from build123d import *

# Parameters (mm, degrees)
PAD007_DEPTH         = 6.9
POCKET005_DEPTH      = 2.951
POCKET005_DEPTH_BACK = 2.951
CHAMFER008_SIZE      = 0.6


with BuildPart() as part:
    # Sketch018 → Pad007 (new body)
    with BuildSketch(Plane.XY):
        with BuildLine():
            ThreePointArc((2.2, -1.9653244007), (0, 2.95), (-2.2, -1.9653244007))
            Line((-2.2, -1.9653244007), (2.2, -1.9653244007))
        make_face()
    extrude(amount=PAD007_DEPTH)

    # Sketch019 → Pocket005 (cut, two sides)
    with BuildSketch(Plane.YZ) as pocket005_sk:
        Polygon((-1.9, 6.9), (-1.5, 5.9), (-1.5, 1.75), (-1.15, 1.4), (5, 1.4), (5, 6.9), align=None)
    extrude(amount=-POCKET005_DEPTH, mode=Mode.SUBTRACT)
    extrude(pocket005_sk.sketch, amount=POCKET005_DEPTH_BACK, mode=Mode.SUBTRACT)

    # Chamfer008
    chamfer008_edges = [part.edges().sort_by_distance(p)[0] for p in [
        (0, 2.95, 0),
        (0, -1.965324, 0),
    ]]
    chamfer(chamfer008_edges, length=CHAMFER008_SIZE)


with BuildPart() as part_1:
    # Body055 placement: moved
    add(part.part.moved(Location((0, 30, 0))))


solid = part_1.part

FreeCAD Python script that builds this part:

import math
import FreeCAD as App
import Part
import Sketcher

V = App.Vector
Q = App.Units.Quantity


def edges_at(feature, points):
    """Names of the edges that pass closest to the given points."""
    edges = feature.Shape.Edges
    near = lambda p: min(range(len(edges)), key=lambda i: edges[i].distToShape(Part.Vertex(*p))[0])
    return sorted({f"Edge{near(p) + 1}" for p in points})


def add_polygon(sketch, points):
    """Adds a closed chain of lines whose ends are joined by coincident constraints."""
    first, n = sketch.GeometryCount, len(points)
    for a, b in zip(points, points[1:] + points[:1]):
        sketch.addGeometry(Part.LineSegment(App.Vector(*a, 0), App.Vector(*b, 0)), False)
    for i in range(n):
        sketch.addConstraint(Sketcher.Constraint("Coincident", first + i, 2, first + (i + 1) % n, 1))

doc = App.newDocument("Part")
params = doc.addObject("Spreadsheet::Sheet", "Params")
for row, (alias, value) in enumerate([
    ("sketch1_radius", "2.95 mm"),
    ("sketch1_width", "4.4 mm"),
    ("pad1_length", "6.9 mm"),
    ("sketch2_width", "6.9 mm"),
    ("sketch2_height", "5.5 mm"),
    ("sketch2_width2", "6.15 mm"),
    ("sketch2_height2", "4.15 mm"),
    ("chamfer_size", "0.6 mm"),
], start=1):
    params.set(f"A{row}", alias)
    params.set(f"B{row}", "=" + value)
    params.setAlias(f"B{row}", alias)

body = doc.addObject("PartDesign::Body", "Body")

# Sketch on XY plane
sketch1 = body.newObject("Sketcher::SketchObject", "Sketch")
sketch1.AttachmentSupport = (doc.getObject("XY_Plane"), [""])
sketch1.MapMode = "FlatFace"
sketch1.addGeometry([
    Part.ArcOfCircle(Part.Circle(V(0, 0, 0), V(0, 0, 1), 3), math.radians(-42), math.radians(222)),
    Part.LineSegment(V(-2.2, -2, 0), V(2.2, -2, 0)),
], False)
sketch1.addConstraint([
    Sketcher.Constraint("Coincident", 0, 1, 1, 2),
    Sketcher.Constraint("Coincident", 1, 1, 0, 2),
    Sketcher.Constraint("Horizontal", 1),
    Sketcher.Constraint("Coincident", 0, 3, -1, 1),
    Sketcher.Constraint("Radius", 0, Q("2.95 mm")),
    Sketcher.Constraint("DistanceX", 1, 1, 1, 2, Q("4.4 mm")),
])
sketch1.setExpression("Constraints[4]", "Params.sketch1_radius")
sketch1.setExpression("Constraints[5]", "Params.sketch1_width")
pad1 = body.newObject("PartDesign::Pad", "Pad")
pad1.Profile = sketch1
pad1.setExpression("Length", "Params.pad1_length")

# Sketch on YZ plane
sketch2 = body.newObject("Sketcher::SketchObject", "Sketch001")
sketch2.AttachmentSupport = (doc.getObject("YZ_Plane"), [""])
sketch2.MapMode = "FlatFace"
add_polygon(sketch2, [(-1.9, 6.9), (-1.5, 5.9), (-1.5, 1.75), (-1.15, 1.4), (5, 1.4), (5, 6.9)])  # lines 0-5
sketch2.addConstraint([
    Sketcher.Constraint("Vertical", 1),
    Sketcher.Constraint("Horizontal", 3),
    Sketcher.Constraint("Vertical", 4),
    Sketcher.Constraint("Horizontal", 5),
    Sketcher.Constraint("Angle", 2, Q("-45 deg")),
    Sketcher.Constraint("DistanceX", 5, 2, 5, 1, Q("6.9 mm")),
    Sketcher.Constraint("DistanceY", 4, 1, 4, 2, Q("5.5 mm")),
    Sketcher.Constraint("DistanceX", -1, 1, 3, 2, Q("5 mm")),
    Sketcher.Constraint("DistanceY", 0, 2, 4, 2, Q("1 mm")),
    Sketcher.Constraint("DistanceX", 3, 1, 3, 2, Q("6.15 mm")),
    Sketcher.Constraint("DistanceY", 1, 2, 1, 1, Q("4.15 mm")),
    Sketcher.Constraint("DistanceY", -1, 1, 0, 2, Q("5.9 mm")),
])
sketch2.setExpression("Constraints[11]", "Params.sketch2_width")
sketch2.setExpression("Constraints[12]", "Params.sketch2_height")
sketch2.setExpression("Constraints[15]", "Params.sketch2_width2")
sketch2.setExpression("Constraints[16]", "Params.sketch2_height2")
pocket1 = body.newObject("PartDesign::Pocket", "Pocket")
pocket1.Profile = sketch2
pocket1.Type = "ThroughAll"
pocket1.Midplane = True
doc.recompute()

chamfer = body.newObject("PartDesign::Chamfer", "Chamfer")
chamfer.Base = (pocket1, edges_at(pocket1, [(0, 2.95, 0), (0, -1.965, 0)]))
chamfer.setExpression("Size", "Params.chamfer_size")
body2 = doc.addObject("PartDesign::Body", "Body001")
doc.recompute()

body.Placement = App.Placement(V(0, 30, 0), App.Rotation(V(0, 0, 1), 0))
boolean = body2.newObject("PartDesign::Boolean", "Boolean")
boolean.Type = "Fuse"
boolean.addObjects([body])

doc.recompute()
